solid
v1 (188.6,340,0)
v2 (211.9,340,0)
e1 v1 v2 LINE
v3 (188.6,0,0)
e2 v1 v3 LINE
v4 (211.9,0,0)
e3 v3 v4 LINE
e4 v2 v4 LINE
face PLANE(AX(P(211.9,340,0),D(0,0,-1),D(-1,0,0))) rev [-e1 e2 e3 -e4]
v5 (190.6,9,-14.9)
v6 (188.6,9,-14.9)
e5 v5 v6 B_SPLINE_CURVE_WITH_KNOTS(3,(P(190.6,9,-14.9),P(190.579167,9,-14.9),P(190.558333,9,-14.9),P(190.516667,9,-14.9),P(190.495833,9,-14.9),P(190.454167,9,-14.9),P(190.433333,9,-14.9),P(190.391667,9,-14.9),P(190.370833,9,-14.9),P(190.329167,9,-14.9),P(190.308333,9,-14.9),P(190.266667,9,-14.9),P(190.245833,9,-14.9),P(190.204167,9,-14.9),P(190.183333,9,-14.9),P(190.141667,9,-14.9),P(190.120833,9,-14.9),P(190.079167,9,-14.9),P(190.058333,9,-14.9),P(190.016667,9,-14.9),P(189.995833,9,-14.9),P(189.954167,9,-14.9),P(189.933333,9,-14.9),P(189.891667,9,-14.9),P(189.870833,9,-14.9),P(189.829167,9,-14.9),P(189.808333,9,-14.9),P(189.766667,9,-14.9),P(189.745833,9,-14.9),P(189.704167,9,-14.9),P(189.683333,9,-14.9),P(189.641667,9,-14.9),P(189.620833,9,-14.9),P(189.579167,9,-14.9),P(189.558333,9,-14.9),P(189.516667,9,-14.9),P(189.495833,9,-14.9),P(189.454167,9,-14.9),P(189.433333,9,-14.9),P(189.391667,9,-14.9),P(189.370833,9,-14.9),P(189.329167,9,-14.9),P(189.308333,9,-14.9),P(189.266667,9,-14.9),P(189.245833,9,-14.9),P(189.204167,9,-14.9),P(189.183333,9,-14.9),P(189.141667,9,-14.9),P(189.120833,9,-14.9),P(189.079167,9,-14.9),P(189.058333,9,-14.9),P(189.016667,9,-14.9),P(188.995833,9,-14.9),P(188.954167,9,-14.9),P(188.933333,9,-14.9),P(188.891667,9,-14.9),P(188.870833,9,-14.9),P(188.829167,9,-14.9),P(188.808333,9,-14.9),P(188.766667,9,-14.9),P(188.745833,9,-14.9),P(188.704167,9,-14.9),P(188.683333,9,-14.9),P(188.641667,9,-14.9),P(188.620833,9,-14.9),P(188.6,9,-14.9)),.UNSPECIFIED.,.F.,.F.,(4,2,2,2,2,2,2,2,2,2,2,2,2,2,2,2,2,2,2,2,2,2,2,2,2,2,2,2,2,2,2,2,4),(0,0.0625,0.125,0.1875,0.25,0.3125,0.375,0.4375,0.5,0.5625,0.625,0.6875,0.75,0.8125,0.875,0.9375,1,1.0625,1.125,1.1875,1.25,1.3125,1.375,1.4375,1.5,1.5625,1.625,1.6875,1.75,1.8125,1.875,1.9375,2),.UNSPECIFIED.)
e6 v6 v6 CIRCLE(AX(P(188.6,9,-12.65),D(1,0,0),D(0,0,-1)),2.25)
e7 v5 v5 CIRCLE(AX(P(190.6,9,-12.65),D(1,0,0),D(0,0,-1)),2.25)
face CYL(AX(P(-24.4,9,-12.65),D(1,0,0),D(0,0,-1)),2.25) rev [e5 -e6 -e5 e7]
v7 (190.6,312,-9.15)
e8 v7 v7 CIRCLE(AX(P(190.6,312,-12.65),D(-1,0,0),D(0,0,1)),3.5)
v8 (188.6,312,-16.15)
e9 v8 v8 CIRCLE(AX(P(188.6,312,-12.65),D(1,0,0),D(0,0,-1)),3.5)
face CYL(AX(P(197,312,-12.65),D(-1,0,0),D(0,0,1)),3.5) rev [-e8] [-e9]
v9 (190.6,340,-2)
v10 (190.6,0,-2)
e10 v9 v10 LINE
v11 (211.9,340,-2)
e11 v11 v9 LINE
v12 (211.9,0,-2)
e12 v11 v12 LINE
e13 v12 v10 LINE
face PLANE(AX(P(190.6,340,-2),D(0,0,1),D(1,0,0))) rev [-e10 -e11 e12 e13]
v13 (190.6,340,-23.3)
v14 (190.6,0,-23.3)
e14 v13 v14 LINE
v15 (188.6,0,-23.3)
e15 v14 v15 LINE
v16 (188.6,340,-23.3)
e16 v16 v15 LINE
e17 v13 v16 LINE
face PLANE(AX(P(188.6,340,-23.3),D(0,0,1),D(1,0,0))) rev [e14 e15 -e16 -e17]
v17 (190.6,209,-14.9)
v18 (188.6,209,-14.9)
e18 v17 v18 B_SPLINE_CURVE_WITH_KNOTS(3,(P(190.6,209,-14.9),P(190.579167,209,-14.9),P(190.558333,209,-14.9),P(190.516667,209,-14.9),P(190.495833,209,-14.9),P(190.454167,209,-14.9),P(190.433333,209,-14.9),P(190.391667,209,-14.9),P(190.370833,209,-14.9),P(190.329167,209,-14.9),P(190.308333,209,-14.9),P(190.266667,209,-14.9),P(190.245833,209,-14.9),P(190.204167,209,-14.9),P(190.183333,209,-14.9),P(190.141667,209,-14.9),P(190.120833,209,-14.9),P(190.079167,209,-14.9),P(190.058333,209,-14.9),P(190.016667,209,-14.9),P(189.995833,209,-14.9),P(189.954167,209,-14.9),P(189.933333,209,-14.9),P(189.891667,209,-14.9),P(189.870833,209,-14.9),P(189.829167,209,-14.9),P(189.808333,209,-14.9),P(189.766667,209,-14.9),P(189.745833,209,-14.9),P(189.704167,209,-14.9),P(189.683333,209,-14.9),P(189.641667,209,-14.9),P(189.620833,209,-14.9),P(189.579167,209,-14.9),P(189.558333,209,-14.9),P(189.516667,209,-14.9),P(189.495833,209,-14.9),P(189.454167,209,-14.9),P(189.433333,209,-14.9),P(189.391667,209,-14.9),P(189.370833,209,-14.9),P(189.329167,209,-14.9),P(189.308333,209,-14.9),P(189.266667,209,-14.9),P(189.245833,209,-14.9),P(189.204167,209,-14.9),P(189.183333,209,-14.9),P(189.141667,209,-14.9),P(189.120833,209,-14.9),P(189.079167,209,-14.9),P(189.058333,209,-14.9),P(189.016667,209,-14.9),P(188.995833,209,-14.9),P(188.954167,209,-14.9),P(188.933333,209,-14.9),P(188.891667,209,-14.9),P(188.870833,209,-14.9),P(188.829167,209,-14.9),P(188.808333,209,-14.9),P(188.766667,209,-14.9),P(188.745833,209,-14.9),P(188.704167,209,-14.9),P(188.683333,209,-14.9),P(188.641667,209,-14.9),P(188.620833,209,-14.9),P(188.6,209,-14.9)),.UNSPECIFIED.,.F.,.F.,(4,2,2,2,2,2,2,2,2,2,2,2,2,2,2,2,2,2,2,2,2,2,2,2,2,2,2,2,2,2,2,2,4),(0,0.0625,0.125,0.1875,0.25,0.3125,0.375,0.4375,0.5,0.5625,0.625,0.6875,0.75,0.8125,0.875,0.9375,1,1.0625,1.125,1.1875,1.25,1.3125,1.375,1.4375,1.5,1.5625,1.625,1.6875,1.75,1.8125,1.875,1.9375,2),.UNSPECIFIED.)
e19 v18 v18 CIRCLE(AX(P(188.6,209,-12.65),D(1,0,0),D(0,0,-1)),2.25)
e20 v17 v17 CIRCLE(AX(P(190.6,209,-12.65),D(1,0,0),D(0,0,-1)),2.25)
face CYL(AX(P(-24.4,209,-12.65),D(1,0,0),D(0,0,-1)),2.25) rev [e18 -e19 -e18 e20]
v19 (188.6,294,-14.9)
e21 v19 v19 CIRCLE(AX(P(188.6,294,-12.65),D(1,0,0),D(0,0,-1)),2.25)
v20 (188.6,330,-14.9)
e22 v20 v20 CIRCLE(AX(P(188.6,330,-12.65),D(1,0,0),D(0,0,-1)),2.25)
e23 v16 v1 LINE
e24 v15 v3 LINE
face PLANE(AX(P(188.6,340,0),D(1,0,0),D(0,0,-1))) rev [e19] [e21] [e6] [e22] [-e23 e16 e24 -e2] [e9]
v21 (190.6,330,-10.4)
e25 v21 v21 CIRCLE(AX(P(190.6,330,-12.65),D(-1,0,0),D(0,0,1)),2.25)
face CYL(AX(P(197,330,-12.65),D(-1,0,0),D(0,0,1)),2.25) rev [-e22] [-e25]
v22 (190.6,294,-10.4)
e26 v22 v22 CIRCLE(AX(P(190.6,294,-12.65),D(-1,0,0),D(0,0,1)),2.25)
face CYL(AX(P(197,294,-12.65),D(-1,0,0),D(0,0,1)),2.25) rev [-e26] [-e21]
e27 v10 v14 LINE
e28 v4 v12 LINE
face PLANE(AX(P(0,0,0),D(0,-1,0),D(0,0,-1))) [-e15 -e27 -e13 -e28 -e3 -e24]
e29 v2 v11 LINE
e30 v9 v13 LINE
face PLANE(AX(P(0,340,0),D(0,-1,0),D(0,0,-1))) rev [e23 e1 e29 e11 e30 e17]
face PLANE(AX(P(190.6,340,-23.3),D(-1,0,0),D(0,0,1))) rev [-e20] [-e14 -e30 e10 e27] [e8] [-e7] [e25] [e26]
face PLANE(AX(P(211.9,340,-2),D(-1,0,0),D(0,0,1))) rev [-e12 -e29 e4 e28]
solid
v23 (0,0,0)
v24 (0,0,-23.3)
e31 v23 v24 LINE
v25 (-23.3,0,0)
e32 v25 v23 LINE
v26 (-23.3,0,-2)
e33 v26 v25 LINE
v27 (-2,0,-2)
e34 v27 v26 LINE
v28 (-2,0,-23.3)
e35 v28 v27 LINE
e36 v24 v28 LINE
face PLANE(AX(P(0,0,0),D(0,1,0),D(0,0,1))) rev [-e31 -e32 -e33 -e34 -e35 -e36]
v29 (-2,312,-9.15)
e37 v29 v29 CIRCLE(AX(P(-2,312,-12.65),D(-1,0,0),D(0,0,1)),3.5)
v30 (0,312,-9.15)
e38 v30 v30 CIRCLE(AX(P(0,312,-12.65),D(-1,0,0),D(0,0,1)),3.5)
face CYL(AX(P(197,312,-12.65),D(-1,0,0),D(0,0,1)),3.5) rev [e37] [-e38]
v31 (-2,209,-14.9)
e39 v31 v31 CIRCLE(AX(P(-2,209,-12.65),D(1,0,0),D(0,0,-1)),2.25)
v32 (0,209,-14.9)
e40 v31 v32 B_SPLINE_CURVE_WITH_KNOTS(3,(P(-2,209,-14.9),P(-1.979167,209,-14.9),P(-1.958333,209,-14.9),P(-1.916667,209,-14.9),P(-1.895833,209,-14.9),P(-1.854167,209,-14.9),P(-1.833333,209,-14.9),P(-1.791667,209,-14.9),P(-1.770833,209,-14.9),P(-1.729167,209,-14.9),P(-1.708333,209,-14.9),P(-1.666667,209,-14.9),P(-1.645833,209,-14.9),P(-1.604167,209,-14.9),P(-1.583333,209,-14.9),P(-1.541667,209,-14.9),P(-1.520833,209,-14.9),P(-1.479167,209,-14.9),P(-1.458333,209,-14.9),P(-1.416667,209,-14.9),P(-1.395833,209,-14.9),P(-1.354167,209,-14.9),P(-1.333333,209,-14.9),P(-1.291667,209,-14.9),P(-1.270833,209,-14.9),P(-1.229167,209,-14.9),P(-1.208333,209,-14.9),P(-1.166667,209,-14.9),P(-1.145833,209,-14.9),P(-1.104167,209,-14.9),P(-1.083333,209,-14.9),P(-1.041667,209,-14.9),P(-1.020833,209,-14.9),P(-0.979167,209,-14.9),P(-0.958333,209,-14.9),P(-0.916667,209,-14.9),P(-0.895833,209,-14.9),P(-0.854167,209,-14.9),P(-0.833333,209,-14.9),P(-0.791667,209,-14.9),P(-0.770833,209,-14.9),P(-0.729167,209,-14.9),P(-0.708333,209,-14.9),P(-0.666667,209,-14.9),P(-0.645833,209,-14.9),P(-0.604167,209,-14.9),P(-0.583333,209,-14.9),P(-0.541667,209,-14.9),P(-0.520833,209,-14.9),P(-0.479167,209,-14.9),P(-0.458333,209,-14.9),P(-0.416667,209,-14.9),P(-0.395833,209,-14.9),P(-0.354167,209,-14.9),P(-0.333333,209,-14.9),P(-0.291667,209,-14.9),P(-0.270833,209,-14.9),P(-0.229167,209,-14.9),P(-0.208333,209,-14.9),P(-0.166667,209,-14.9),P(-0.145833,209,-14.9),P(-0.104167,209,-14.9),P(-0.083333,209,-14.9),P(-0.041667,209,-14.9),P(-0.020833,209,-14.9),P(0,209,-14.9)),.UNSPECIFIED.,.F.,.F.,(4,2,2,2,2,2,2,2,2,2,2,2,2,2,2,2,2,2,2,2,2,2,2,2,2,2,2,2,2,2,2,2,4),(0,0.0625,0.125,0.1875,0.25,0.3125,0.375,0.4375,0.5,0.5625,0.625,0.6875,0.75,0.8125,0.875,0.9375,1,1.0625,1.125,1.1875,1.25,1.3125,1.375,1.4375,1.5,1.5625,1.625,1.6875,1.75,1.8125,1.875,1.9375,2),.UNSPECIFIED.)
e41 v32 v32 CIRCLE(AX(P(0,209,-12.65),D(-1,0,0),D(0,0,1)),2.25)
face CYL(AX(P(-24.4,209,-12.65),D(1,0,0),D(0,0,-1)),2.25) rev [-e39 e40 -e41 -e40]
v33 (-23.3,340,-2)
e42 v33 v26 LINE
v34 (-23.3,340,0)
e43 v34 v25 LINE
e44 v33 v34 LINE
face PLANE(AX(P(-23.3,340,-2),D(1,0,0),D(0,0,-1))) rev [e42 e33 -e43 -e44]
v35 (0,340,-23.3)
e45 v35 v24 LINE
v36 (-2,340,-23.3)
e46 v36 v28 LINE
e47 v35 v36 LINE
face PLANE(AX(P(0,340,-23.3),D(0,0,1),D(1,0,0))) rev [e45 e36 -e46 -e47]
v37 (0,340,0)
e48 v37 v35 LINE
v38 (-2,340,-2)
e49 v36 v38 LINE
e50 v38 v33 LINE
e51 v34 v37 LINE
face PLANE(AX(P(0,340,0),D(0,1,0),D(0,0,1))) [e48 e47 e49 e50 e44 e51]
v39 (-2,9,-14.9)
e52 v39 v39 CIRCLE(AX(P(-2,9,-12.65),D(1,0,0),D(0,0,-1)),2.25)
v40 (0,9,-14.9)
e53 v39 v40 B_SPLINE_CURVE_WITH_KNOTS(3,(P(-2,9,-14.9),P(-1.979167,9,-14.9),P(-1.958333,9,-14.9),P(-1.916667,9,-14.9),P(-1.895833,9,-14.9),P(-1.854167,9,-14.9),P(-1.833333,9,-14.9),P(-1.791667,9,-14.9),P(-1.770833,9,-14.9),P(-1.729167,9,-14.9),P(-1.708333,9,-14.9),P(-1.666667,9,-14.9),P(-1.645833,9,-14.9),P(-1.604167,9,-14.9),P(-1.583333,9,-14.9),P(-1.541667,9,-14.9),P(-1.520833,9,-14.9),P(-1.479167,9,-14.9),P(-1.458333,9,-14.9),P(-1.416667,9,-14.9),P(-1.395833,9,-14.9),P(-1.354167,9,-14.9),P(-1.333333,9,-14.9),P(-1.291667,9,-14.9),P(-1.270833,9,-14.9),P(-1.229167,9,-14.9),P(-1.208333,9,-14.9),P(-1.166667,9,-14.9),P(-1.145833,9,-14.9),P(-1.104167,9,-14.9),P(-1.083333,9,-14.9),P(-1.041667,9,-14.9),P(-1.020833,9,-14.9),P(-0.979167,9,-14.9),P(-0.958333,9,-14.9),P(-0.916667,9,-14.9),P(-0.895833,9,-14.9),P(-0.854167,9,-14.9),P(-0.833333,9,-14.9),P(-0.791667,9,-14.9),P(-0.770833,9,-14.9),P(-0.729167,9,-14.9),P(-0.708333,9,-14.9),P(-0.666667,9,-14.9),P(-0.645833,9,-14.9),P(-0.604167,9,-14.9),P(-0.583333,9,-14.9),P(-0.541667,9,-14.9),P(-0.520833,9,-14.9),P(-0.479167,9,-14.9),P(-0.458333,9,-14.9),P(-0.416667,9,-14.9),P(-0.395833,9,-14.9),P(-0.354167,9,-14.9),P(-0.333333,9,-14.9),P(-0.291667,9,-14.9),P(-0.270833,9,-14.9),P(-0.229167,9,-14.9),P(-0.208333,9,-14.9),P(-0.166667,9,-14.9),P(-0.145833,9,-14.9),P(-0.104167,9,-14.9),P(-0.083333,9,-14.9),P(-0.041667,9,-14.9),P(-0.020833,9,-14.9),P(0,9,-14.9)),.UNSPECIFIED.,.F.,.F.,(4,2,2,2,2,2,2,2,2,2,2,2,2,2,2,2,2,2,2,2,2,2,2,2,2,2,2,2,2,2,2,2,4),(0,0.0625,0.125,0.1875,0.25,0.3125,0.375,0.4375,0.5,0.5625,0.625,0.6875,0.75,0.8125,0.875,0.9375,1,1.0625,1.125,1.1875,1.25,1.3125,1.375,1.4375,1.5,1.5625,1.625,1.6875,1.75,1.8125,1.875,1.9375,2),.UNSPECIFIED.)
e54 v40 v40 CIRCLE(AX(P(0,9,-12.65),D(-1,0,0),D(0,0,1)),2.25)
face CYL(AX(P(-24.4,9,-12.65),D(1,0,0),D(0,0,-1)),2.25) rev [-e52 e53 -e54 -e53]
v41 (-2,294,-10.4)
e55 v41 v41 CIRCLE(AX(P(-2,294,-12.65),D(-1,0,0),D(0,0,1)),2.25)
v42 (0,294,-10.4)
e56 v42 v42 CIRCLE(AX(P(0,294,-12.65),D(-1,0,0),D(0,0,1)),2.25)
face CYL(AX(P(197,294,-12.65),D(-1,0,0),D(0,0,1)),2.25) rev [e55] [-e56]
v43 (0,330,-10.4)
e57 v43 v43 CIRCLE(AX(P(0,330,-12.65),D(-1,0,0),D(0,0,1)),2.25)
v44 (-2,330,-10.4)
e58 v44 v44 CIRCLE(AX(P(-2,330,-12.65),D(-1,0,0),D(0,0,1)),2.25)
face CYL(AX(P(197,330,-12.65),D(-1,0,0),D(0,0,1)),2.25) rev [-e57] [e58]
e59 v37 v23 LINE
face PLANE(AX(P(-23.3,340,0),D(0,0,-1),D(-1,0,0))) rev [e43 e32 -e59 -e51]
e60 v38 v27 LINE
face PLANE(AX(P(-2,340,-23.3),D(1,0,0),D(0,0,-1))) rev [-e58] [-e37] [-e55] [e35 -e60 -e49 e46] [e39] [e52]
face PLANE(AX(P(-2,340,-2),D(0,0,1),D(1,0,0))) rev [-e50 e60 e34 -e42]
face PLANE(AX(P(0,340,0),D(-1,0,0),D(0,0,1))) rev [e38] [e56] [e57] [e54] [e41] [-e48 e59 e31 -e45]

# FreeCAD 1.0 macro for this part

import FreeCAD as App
import Part
import Sketcher

V = App.Vector


def add_polygon(sketch, points):
    """Adds a closed chain of lines whose ends are joined by coincident constraints."""
    first, n = sketch.GeometryCount, len(points)
    for a, b in zip(points, points[1:] + points[:1]):
        sketch.addGeometry(Part.LineSegment(App.Vector(*a, 0), App.Vector(*b, 0)), False)
    for i in range(n):
        sketch.addConstraint(Sketcher.Constraint("Coincident", first + i, 2, first + (i + 1) % n, 1))

doc = App.newDocument("Part")
body = doc.addObject("PartDesign::Body", "Body")

# Sketch on XZ plane
sketch1 = doc.addObject("Sketcher::SketchObject", "Sketch")
body.addObject(sketch1)
sketch1.AttachmentSupport = (doc.XZ_Plane, [""])
sketch1.MapMode = "FlatFace"
add_polygon(sketch1, [(188.6, -23.3), (188.6, 0), (211.9, 0), (211.9, -2), (190.6, -2), (190.6, -23.3)])  # lines 0-5
sketch1.addConstraint(Sketcher.Constraint("Vertical", 0))
sketch1.addConstraint(Sketcher.Constraint("Horizontal", 1))
sketch1.addConstraint(Sketcher.Constraint("Vertical", 2))
sketch1.addConstraint(Sketcher.Constraint("Horizontal", 3))
sketch1.addConstraint(Sketcher.Constraint("Vertical", 4))
sketch1.addConstraint(Sketcher.Constraint("Horizontal", 5))
sketch1.addConstraint(Sketcher.Constraint("PointOnObject", 0, 2, -1))
sketch1.addConstraint(Sketcher.Constraint("Equal", 1, 0))
sketch1.addConstraint(Sketcher.Constraint("Equal", 5, 2))
sketch1.addConstraint(Sketcher.Constraint("DistanceX", 5, 2, 5, 1, 2.0))
sketch1.addConstraint(Sketcher.Constraint("DistanceX", 1, 1, 1, 2, 23.3))
sketch1.addConstraint(Sketcher.Constraint("DistanceX", -1, 1, 0, 2, 188.6))
pad1 = doc.addObject("PartDesign::Pad", "Pad")
body.addObject(pad1)
pad1.Profile = sketch1
pad1.Length = 340
pad1.Reversed = True
body2 = doc.addObject("PartDesign::Body", "Body001")

# Sketch on XZ plane
sketch2 = doc.addObject("Sketcher::SketchObject", "Sketch001")
body2.addObject(sketch2)
sketch2.AttachmentSupport = (doc.getObject("XZ_Plane001"), [""])
sketch2.MapMode = "FlatFace"
add_polygon(sketch2, [(-23.3, -2), (-23.3, 0), (0, 0), (0, -23.3), (-2, -23.3), (-2, -2)])  # lines 0-5
sketch2.addConstraint(Sketcher.Constraint("Vertical", 0))
sketch2.addConstraint(Sketcher.Constraint("Horizontal", 1))
sketch2.addConstraint(Sketcher.Constraint("Vertical", 2))
sketch2.addConstraint(Sketcher.Constraint("Horizontal", 3))
sketch2.addConstraint(Sketcher.Constraint("Vertical", 4))
sketch2.addConstraint(Sketcher.Constraint("Horizontal", 5))
sketch2.addConstraint(Sketcher.Constraint("Coincident", 1, 2, -1, 1))
sketch2.addConstraint(Sketcher.Constraint("Equal", 3, 0))
sketch2.addConstraint(Sketcher.Constraint("Equal", 1, 2))
sketch2.addConstraint(Sketcher.Constraint("DistanceX", 3, 2, 3, 1, 2.0))
sketch2.addConstraint(Sketcher.Constraint("DistanceX", 1, 1, 1, 2, 23.3))
pad2 = doc.addObject("PartDesign::Pad", "Pad001")
body2.addObject(pad2)
pad2.Profile = sketch2
pad2.Length = 340
pad2.Reversed = True
body3 = doc.addObject("PartDesign::Body", "Body002")

# Sketch on YZ plane
sketch3 = doc.addObject("Sketcher::SketchObject", "Sketch002")
body3.addObject(sketch3)
sketch3.AttachmentSupport = (doc.getObject("YZ_Plane002"), [""])
sketch3.MapMode = "FlatFace"
sketch3.AttachmentOffset = App.Placement(V(0, 0, 190.6), App.Rotation())
sketch3.addGeometry(Part.Circle(V(9, -12.7, 0), V(0, 0, 1), 2.2), False)
sketch3.addConstraint(Sketcher.Constraint("Diameter", 0, 4.5))
sketch3.addConstraint(Sketcher.Constraint("DistanceX", -1, 1, 0, 3, 9.0))
sketch3.addConstraint(Sketcher.Constraint("DistanceY", 0, 3, -1, 1, 12.65))
pad3 = doc.addObject("PartDesign::Pad", "Pad002")
body3.addObject(pad3)
pad3.Profile = sketch3
pad3.Length = 215
pad3.Reversed = True
doc.recompute()

body4 = doc.addObject("PartDesign::Body", "Body003")
body4.BaseFeature = body3
boolean = doc.addObject("PartDesign::Boolean", "Boolean")
body.addObject(boolean)
boolean.Type = "Cut"
boolean.addObjects([body4])
doc.recompute()

boolean2 = doc.addObject("PartDesign::Boolean", "Boolean001")
body2.addObject(boolean2)
boolean2.Type = "Cut"
boolean2.addObjects([body3])
body5 = doc.addObject("PartDesign::Body", "Body004")

# Sketch on YZ plane
sketch4 = doc.addObject("Sketcher::SketchObject", "Sketch003")
body5.addObject(sketch4)
sketch4.AttachmentSupport = (doc.getObject("YZ_Plane004"), [""])
sketch4.MapMode = "FlatFace"
sketch4.AttachmentOffset = App.Placement(V(0, 0, 190.6), App.Rotation())
sketch4.addGeometry(Part.Circle(V(209, -12.7, 0), V(0, 0, 1), 2.2), False)
sketch4.addConstraint(Sketcher.Constraint("Diameter", 0, 4.5))
sketch4.addConstraint(Sketcher.Constraint("DistanceX", -1, 1, 0, 3, 209.0))
sketch4.addConstraint(Sketcher.Constraint("DistanceY", 0, 3, -1, 1, 12.65))
pad4 = doc.addObject("PartDesign::Pad", "Pad003")
body5.addObject(pad4)
pad4.Profile = sketch4
pad4.Length = 215
pad4.Reversed = True
doc.recompute()

body6 = doc.addObject("PartDesign::Body", "Body005")
body6.BaseFeature = body5
boolean3 = doc.addObject("PartDesign::Boolean", "Boolean002")
body.addObject(boolean3)
boolean3.Type = "Cut"
boolean3.addObjects([body6])
doc.recompute()

boolean4 = doc.addObject("PartDesign::Boolean", "Boolean003")
body2.addObject(boolean4)
boolean4.Type = "Cut"
boolean4.addObjects([body5])
body7 = doc.addObject("PartDesign::Body", "Body006")
body7.AllowCompound = True

# Sketch on YZ plane
sketch5 = doc.addObject("Sketcher::SketchObject", "Sketch004")
body7.addObject(sketch5)
sketch5.AttachmentSupport = (doc.getObject("YZ_Plane006"), [""])
sketch5.MapMode = "FlatFace"
sketch5.AttachmentOffset = App.Placement(V(0, 0, -2), App.Rotation())
sketch5.addGeometry(Part.Circle(V(330, -12.7, 0), V(0, 0, 1), 2.2), False)
sketch5.addGeometry(Part.Circle(V(294, -12.7, 0), V(0, 0, 1), 2.2), False)
sketch5.addGeometry(Part.Circle(V(312, -12.7, 0), V(0, 0, 1), 3.5), False)
sketch5.addConstraint(Sketcher.Constraint("Equal", 0, 1))
sketch5.addConstraint(Sketcher.Constraint("Horizontal", 0, 3, 1, 3))
sketch5.addConstraint(Sketcher.Constraint("Horizontal", 1, 3, 2, 3))
sketch5.addConstraint(Sketcher.Constraint("Diameter", 2, 7.0))
sketch5.addConstraint(Sketcher.Constraint("Diameter", 0, 4.5))
sketch5.addConstraint(Sketcher.Constraint("DistanceX", -1, 1, 0, 3, 330.0))
sketch5.addConstraint(Sketcher.Constraint("DistanceX", -1, 1, 1, 3, 294.0))
sketch5.addConstraint(Sketcher.Constraint("DistanceX", -1, 1, 2, 3, 312.0))
sketch5.addConstraint(Sketcher.Constraint("DistanceY", 0, 3, -1, 1, 12.65))
pad5 = doc.addObject("PartDesign::Pad", "Pad004")
body7.addObject(pad5)
pad5.Profile = sketch5
pad5.Length = 199
doc.recompute()

body8 = doc.addObject("PartDesign::Body", "Body007")
body8.BaseFeature = body7
boolean5 = doc.addObject("PartDesign::Boolean", "Boolean004")
body.addObject(boolean5)
boolean5.Type = "Cut"
boolean5.addObjects([body8])
doc.recompute()

boolean6 = doc.addObject("PartDesign::Boolean", "Boolean005")
body2.addObject(boolean6)
boolean6.Type = "Cut"
boolean6.addObjects([body7])

doc.recompute()
